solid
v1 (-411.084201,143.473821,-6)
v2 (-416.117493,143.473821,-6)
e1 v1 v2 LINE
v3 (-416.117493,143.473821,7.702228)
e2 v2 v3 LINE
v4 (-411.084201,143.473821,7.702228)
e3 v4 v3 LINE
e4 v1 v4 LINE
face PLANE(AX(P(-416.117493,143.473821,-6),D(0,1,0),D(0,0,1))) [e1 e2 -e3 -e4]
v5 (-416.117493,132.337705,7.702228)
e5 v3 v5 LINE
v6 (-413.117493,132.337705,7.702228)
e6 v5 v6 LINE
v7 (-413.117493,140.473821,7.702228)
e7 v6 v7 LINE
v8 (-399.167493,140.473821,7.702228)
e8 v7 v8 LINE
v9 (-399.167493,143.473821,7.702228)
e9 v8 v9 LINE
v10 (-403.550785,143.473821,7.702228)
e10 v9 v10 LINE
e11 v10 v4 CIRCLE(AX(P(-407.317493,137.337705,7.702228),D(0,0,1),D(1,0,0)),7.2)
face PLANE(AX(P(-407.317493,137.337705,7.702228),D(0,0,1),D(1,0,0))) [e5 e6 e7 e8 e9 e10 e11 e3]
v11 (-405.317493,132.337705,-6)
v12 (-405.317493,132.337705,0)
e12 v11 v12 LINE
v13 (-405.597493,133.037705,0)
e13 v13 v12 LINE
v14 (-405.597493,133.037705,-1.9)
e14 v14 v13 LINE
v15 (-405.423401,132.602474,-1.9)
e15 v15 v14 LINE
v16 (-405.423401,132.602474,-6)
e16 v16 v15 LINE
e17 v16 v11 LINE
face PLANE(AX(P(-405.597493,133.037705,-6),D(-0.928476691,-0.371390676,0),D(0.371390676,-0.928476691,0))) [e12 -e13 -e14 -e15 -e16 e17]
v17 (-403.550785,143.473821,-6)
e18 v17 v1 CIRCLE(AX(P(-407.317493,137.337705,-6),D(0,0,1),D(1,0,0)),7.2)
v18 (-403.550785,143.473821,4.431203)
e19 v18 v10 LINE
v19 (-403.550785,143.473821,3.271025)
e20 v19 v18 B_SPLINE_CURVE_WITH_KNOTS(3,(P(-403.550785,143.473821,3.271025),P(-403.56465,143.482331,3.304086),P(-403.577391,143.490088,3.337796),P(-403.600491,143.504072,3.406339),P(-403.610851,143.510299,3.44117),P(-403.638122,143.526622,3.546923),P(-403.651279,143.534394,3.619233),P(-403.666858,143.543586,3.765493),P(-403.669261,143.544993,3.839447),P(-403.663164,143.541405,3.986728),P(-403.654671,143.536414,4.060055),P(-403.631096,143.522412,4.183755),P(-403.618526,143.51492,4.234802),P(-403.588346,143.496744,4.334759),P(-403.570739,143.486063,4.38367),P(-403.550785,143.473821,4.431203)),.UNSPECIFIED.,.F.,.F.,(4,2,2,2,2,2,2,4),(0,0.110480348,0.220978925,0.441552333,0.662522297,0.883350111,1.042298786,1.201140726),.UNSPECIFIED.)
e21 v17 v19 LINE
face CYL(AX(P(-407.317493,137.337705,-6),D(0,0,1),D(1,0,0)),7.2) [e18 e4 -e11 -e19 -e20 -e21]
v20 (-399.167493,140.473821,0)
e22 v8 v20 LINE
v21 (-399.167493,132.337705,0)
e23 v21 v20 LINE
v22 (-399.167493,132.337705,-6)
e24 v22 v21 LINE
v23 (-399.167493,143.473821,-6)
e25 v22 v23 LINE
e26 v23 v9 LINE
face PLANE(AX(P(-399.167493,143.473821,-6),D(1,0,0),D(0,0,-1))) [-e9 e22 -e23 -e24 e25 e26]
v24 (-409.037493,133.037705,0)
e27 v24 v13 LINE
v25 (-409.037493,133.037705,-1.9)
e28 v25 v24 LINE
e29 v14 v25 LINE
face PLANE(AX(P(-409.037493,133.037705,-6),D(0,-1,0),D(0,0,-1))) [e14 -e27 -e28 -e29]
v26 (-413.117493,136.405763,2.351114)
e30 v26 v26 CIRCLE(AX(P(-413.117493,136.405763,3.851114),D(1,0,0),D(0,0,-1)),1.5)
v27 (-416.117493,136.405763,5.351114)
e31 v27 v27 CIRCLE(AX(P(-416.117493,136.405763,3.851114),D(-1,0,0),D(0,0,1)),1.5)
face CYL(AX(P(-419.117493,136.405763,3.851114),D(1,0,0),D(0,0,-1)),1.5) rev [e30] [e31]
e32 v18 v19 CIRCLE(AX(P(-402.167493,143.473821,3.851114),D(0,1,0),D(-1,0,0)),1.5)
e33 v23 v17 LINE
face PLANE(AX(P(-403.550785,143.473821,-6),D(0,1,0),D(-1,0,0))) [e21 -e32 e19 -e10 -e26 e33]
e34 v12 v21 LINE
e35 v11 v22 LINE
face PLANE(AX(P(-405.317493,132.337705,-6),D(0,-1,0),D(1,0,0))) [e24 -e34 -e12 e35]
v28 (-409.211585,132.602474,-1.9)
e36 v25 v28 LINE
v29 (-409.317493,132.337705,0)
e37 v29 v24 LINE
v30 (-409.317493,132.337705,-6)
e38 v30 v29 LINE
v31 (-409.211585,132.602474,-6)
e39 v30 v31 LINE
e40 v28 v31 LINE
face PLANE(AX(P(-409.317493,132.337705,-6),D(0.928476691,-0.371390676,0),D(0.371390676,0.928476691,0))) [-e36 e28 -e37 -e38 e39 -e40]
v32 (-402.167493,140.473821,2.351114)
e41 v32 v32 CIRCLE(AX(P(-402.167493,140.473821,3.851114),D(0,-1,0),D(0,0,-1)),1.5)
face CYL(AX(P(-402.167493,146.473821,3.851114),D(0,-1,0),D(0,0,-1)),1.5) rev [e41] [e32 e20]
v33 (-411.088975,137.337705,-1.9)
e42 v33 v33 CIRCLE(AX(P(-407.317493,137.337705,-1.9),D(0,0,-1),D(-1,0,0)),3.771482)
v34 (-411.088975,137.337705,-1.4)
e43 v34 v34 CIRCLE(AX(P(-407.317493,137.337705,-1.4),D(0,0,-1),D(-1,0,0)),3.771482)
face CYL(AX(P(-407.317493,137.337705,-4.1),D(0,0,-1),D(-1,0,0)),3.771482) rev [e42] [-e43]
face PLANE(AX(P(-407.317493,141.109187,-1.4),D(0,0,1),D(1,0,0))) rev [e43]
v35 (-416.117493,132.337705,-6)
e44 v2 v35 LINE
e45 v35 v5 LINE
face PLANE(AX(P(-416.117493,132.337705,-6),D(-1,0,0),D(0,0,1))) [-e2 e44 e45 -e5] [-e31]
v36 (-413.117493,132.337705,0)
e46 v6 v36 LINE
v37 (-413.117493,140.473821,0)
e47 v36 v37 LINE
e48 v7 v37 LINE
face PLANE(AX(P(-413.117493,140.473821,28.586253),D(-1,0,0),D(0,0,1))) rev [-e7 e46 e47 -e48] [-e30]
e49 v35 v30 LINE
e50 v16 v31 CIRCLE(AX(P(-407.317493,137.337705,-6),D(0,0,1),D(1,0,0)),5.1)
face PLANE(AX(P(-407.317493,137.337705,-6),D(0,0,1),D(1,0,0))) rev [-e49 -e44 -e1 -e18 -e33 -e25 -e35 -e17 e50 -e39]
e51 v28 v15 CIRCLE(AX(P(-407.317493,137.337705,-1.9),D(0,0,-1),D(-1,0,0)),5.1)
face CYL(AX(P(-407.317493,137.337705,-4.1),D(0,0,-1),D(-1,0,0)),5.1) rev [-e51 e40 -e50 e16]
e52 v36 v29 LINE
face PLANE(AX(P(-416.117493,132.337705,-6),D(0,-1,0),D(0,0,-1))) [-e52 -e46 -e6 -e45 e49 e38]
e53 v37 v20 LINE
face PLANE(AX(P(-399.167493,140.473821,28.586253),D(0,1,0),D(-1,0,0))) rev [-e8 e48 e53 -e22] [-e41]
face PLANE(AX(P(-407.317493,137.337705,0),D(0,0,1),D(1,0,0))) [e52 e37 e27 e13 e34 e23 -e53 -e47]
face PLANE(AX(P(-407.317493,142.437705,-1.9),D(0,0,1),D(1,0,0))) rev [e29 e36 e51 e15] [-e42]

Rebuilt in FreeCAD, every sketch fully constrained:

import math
import FreeCAD as App
import Part
import Sketcher
from FreeCAD import Vector
Q = App.Units.Quantity

doc = App.newDocument("Part")
params = doc.addObject("Spreadsheet::Sheet", "Params")
for row, (alias, value) in enumerate([
    ("sketch1_radius", "7.2 mm"),
    ("sketch1_width", "6.8 mm"),
    ("sketch1_width2", "3.44 mm"),
    ("sketch1_width3", "6.15 mm"),
    ("pad1_length", "6 mm"),
    ("sketch2_width", "5.1 mm"),
    ("sketch2_height", "0.5 mm"),
    ("groove_angle", "360 deg"),
    ("sketch3_radius", "7.2 mm"),
    ("sketch3_width", "3 mm"),
    ("sketch3_width2", "13.95 mm"),
    ("pad2_length", "7.702228 mm"),
    ("sketch4_diameter", "3 mm"),
    ("pocket1_length", "6 mm"),
    ("sketch5_diameter", "3 mm"),
    ("pocket2_length", "6 mm"),
], start=1):
    params.set(f"A{row}", alias)
    params.set(f"B{row}", "=" + value)
    params.setAlias(f"B{row}", alias)

body = doc.addObject("PartDesign::Body", "Body")

# Sketch on XY plane
sketch1 = body.newObject("Sketcher::SketchObject", "Sketch")
sketch1.AttachmentSupport = (doc.getObject("XY_Plane"), [""])
sketch1.MapMode = "FlatFace"
sketch1.addGeometry(Part.LineSegment(Vector(-416.1, 132.3, 0), Vector(-409.3, 132.3, 0)), False)
sketch1.addGeometry(Part.LineSegment(Vector(-409.3, 132.3, 0), Vector(-409, 133, 0)), False)
sketch1.addGeometry(Part.LineSegment(Vector(-409, 133, 0), Vector(-405.6, 133, 0)), False)
sketch1.addGeometry(Part.LineSegment(Vector(-405.6, 133, 0), Vector(-405.3, 132.3, 0)), False)
sketch1.addGeometry(Part.LineSegment(Vector(-405.3, 132.3, 0), Vector(-399.2, 132.3, 0)), False)
sketch1.addGeometry(Part.LineSegment(Vector(-399.2, 132.3, 0), Vector(-399.2, 143.5, 0)), False)
sketch1.addGeometry(Part.LineSegment(Vector(-399.2, 143.5, 0), Vector(-403.6, 143.5, 0)), False)
sketch1.addGeometry(Part.ArcOfCircle(Part.Circle(Vector(-407.3, 137.3, 0), Vector(0, 0, 1), 7.2), math.radians(58), math.radians(122)), False)
sketch1.addGeometry(Part.LineSegment(Vector(-411.1, 143.5, 0), Vector(-416.1, 143.5, 0)), False)
sketch1.addGeometry(Part.LineSegment(Vector(-416.1, 143.5, 0), Vector(-416.1, 132.3, 0)), False)
sketch1.addConstraint(Sketcher.Constraint("Coincident", 0, 2, 1, 1))
sketch1.addConstraint(Sketcher.Constraint("Coincident", 1, 2, 2, 1))
sketch1.addConstraint(Sketcher.Constraint("Coincident", 2, 2, 3, 1))
sketch1.addConstraint(Sketcher.Constraint("Coincident", 3, 2, 4, 1))
sketch1.addConstraint(Sketcher.Constraint("Coincident", 4, 2, 5, 1))
sketch1.addConstraint(Sketcher.Constraint("Coincident", 5, 2, 6, 1))
sketch1.addConstraint(Sketcher.Constraint("Coincident", 6, 2, 7, 1))
sketch1.addConstraint(Sketcher.Constraint("Coincident", 7, 2, 8, 1))
sketch1.addConstraint(Sketcher.Constraint("Coincident", 8, 2, 9, 1))
sketch1.addConstraint(Sketcher.Constraint("Coincident", 9, 2, 0, 1))
sketch1.addConstraint(Sketcher.Constraint("Horizontal", 0))
sketch1.addConstraint(Sketcher.Constraint("Horizontal", 2))
sketch1.addConstraint(Sketcher.Constraint("Horizontal", 4))
sketch1.addConstraint(Sketcher.Constraint("Vertical", 5))
sketch1.addConstraint(Sketcher.Constraint("Horizontal", 6))
sketch1.addConstraint(Sketcher.Constraint("Horizontal", 8))
sketch1.addConstraint(Sketcher.Constraint("Vertical", 9))
sketch1.addConstraint(Sketcher.Constraint("Horizontal", 0, 2, 3, 2))
sketch1.addConstraint(Sketcher.Constraint("Horizontal", 6, 2, 7, 2))
sketch1.addConstraint(Sketcher.Constraint("Equal", 1, 3))
sketch1.addConstraint(Sketcher.Constraint("Radius", 7, Q("7.2 mm")))
sketch1.addConstraint(Sketcher.Constraint("DistanceX", 0, 1, 0, 2, Q("6.8 mm")))
sketch1.addConstraint(Sketcher.Constraint("DistanceX", 0, 2, 7, 3, Q("2 mm")))
sketch1.addConstraint(Sketcher.Constraint("DistanceY", 0, 2, 7, 3, Q("5 mm")))
sketch1.addConstraint(Sketcher.Constraint("DistanceX", 0, 2, 3, 2, Q("4 mm")))
sketch1.addConstraint(Sketcher.Constraint("DistanceX", 2, 1, 2, 2, Q("3.44 mm")))
sketch1.addConstraint(Sketcher.Constraint("DistanceX", 4, 1, 4, 2, Q("6.15 mm")))
sketch1.addConstraint(Sketcher.Constraint("DistanceY", 0, 2, 1, 2, Q("0.7 mm")))
sketch1.addConstraint(Sketcher.Constraint("DistanceX", 6, 2, 6, 1, Q("4.383292 mm")))
sketch1.addConstraint(Sketcher.Constraint("DistanceX", 7, 2, -1, 1, Q("411.084201 mm")))
sketch1.addConstraint(Sketcher.Constraint("DistanceY", -1, 1, 5, 2, Q("143.473821 mm")))
sketch1.setExpression("Constraints[20]", "Params.sketch1_radius")
sketch1.setExpression("Constraints[21]", "Params.sketch1_width")
sketch1.setExpression("Constraints[25]", "Params.sketch1_width2")
sketch1.setExpression("Constraints[26]", "Params.sketch1_width3")
pad1 = body.newObject("PartDesign::Pad", "Pad")
pad1.Profile = sketch1
pad1.setExpression("Length", "Params.pad1_length")
pad1.Reversed = True

# Sketch on YZ plane
sketch2 = body.newObject("Sketcher::SketchObject", "Sketch001")
sketch2.AttachmentSupport = (doc.getObject("YZ_Plane"), [""])
sketch2.MapMode = "FlatFace"
sketch2.AttachmentOffset = App.Placement(Vector(0, 0, -407.317493), App.Rotation())
sketch2.addGeometry(Part.LineSegment(Vector(142.4, -6.1, 0), Vector(142.4, -1.9, 0)), False)
sketch2.addGeometry(Part.LineSegment(Vector(142.4, -1.9, 0), Vector(141.1, -1.9, 0)), False)
sketch2.addGeometry(Part.LineSegment(Vector(141.1, -1.9, 0), Vector(141.1, -1.4, 0)), False)
sketch2.addGeometry(Part.LineSegment(Vector(141.1, -1.4, 0), Vector(137.3, -1.4, 0)), False)
sketch2.addGeometry(Part.LineSegment(Vector(137.3, -1.4, 0), Vector(137.3, -6.1, 0)), False)
sketch2.addGeometry(Part.LineSegment(Vector(137.3, -6.1, 0), Vector(142.4, -6.1, 0)), False)
sketch2.addGeometry(Part.LineSegment(Vector(137.3, -6.1, 0), Vector(137.3, -1.4, 0)), True)  # axis
sketch2.addConstraint(Sketcher.Constraint("Coincident", 0, 2, 1, 1))
sketch2.addConstraint(Sketcher.Constraint("Coincident", 1, 2, 2, 1))
sketch2.addConstraint(Sketcher.Constraint("Coincident", 2, 2, 3, 1))
sketch2.addConstraint(Sketcher.Constraint("Coincident", 3, 2, 4, 1))
sketch2.addConstraint(Sketcher.Constraint("Coincident", 4, 2, 5, 1))
sketch2.addConstraint(Sketcher.Constraint("Coincident", 5, 2, 0, 1))
sketch2.addConstraint(Sketcher.Constraint("Vertical", 0))
sketch2.addConstraint(Sketcher.Constraint("Horizontal", 1))
sketch2.addConstraint(Sketcher.Constraint("Vertical", 2))
sketch2.addConstraint(Sketcher.Constraint("Horizontal", 3))
sketch2.addConstraint(Sketcher.Constraint("Vertical", 4))
sketch2.addConstraint(Sketcher.Constraint("Horizontal", 5))
sketch2.addConstraint(Sketcher.Constraint("Vertical", 6))
sketch2.addConstraint(Sketcher.Constraint("Coincident", 6, 1, 4, 2))
sketch2.addConstraint(Sketcher.Constraint("Horizontal", 2, 2, 6, 2))
sketch2.addConstraint(Sketcher.Constraint("DistanceX", 5, 1, 5, 2, Q("5.1 mm")))
sketch2.addConstraint(Sketcher.Constraint("DistanceY", 2, 1, 2, 2, Q("0.5 mm")))
sketch2.addConstraint(Sketcher.Constraint("DistanceY", 0, 2, -1, 1, Q("1.9 mm")))
sketch2.addConstraint(Sketcher.Constraint("DistanceX", 1, 2, 1, 1, Q("1.328518 mm")))
sketch2.addConstraint(Sketcher.Constraint("DistanceY", 0, 1, 0, 2, Q("4.235092 mm")))
sketch2.addConstraint(Sketcher.Constraint("DistanceX", -1, 1, 0, 2, Q("142.437705 mm")))
sketch2.setExpression("Constraints[15]", "Params.sketch2_width")
sketch2.setExpression("Constraints[16]", "Params.sketch2_height")
groove = body.newObject("PartDesign::Groove", "Groove")
groove.Profile = sketch2
groove.ReferenceAxis = (sketch2, ["Axis0"])
groove.setExpression("Angle", "Params.groove_angle")

# Sketch on XY plane
sketch3 = body.newObject("Sketcher::SketchObject", "Sketch002")
sketch3.AttachmentSupport = (doc.getObject("XY_Plane"), [""])
sketch3.MapMode = "FlatFace"
sketch3.AttachmentOffset = App.Placement(Vector(0, 0, 7.702228), App.Rotation())
sketch3.addGeometry(Part.LineSegment(Vector(-413.1, 132.3, 0), Vector(-413.1, 140.5, 0)), False)
sketch3.addGeometry(Part.LineSegment(Vector(-413.1, 140.5, 0), Vector(-399.2, 140.5, 0)), False)
sketch3.addGeometry(Part.LineSegment(Vector(-399.2, 140.5, 0), Vector(-399.2, 143.5, 0)), False)
sketch3.addGeometry(Part.LineSegment(Vector(-399.2, 143.5, 0), Vector(-403.6, 143.5, 0)), False)
sketch3.addGeometry(Part.ArcOfCircle(Part.Circle(Vector(-407.3, 137.3, 0), Vector(0, 0, 1), 7.2), math.radians(58), math.radians(122)), False)
sketch3.addGeometry(Part.LineSegment(Vector(-411.1, 143.5, 0), Vector(-416.1, 143.5, 0)), False)
sketch3.addGeometry(Part.LineSegment(Vector(-416.1, 143.5, 0), Vector(-416.1, 132.3, 0)), False)
sketch3.addGeometry(Part.LineSegment(Vector(-416.1, 132.3, 0), Vector(-413.1, 132.3, 0)), False)
sketch3.addConstraint(Sketcher.Constraint("Coincident", 0, 2, 1, 1))
sketch3.addConstraint(Sketcher.Constraint("Coincident", 1, 2, 2, 1))
sketch3.addConstraint(Sketcher.Constraint("Coincident", 2, 2, 3, 1))
sketch3.addConstraint(Sketcher.Constraint("Coincident", 3, 2, 4, 1))
sketch3.addConstraint(Sketcher.Constraint("Coincident", 4, 2, 5, 1))
sketch3.addConstraint(Sketcher.Constraint("Coincident", 5, 2, 6, 1))
sketch3.addConstraint(Sketcher.Constraint("Coincident", 6, 2, 7, 1))
sketch3.addConstraint(Sketcher.Constraint("Coincident", 7, 2, 0, 1))
sketch3.addConstraint(Sketcher.Constraint("Vertical", 0))
sketch3.addConstraint(Sketcher.Constraint("Horizontal", 1))
sketch3.addConstraint(Sketcher.Constraint("Vertical", 2))
sketch3.addConstraint(Sketcher.Constraint("Horizontal", 3))
sketch3.addConstraint(Sketcher.Constraint("Horizontal", 5))
sketch3.addConstraint(Sketcher.Constraint("Vertical", 6))
sketch3.addConstraint(Sketcher.Constraint("Horizontal", 7))
sketch3.addConstraint(Sketcher.Constraint("Horizontal", 3, 2, 4, 2))
sketch3.addConstraint(Sketcher.Constraint("Equal", 7, 2))
sketch3.addConstraint(Sketcher.Constraint("Radius", 4, Q("7.2 mm")))
sketch3.addConstraint(Sketcher.Constraint("DistanceX", 7, 1, 7, 2, Q("3 mm")))
sketch3.addConstraint(Sketcher.Constraint("DistanceY", 6, 2, 4, 3, Q("5 mm")))
sketch3.addConstraint(Sketcher.Constraint("DistanceX", 1, 1, 1, 2, Q("13.95 mm")))
sketch3.addConstraint(Sketcher.Constraint("DistanceX", 0, 2, 4, 3, Q("5.8 mm")))
sketch3.addConstraint(Sketcher.Constraint("DistanceX", 3, 2, 3, 1, Q("4.383292 mm")))
sketch3.addConstraint(Sketcher.Constraint("DistanceX", 4, 2, -1, 1, Q("411.084201 mm")))
sketch3.addConstraint(Sketcher.Constraint("DistanceY", -1, 1, 0, 2, Q("140.473821 mm")))
sketch3.setExpression("Constraints[17]", "Params.sketch3_radius")
sketch3.setExpression("Constraints[18]", "Params.sketch3_width")
sketch3.setExpression("Constraints[20]", "Params.sketch3_width2")
pad2 = body.newObject("PartDesign::Pad", "Pad001")
pad2.Profile = sketch3
pad2.setExpression("Length", "Params.pad2_length")
pad2.Reversed = True

# Sketch on YZ plane
sketch4 = body.newObject("Sketcher::SketchObject", "Sketch003")
sketch4.AttachmentSupport = (doc.getObject("YZ_Plane"), [""])
sketch4.MapMode = "FlatFace"
sketch4.AttachmentOffset = App.Placement(Vector(0, 0, -413.117493), App.Rotation())
sketch4.addGeometry(Part.Circle(Vector(136.4, 3.9, 0), Vector(0, 0, 1), 1.5), False)
sketch4.addConstraint(Sketcher.Constraint("Diameter", 0, Q("3 mm")))
sketch4.addConstraint(Sketcher.Constraint("DistanceX", -1, 1, 0, 3, Q("136.405763 mm")))
sketch4.addConstraint(Sketcher.Constraint("DistanceY", -1, 1, 0, 3, Q("3.851114 mm")))
sketch4.setExpression("Constraints[0]", "Params.sketch4_diameter")
pocket1 = body.newObject("PartDesign::Pocket", "Pocket")
pocket1.Profile = sketch4
pocket1.setExpression("Length", "Params.pocket1_length")

# Sketch on XZ plane
sketch5 = body.newObject("Sketcher::SketchObject", "Sketch004")
sketch5.AttachmentSupport = (doc.getObject("XZ_Plane"), [""])
sketch5.MapMode = "FlatFace"
sketch5.AttachmentOffset = App.Placement(Vector(0, 0, -140.473821), App.Rotation())
sketch5.addGeometry(Part.Circle(Vector(-402.2, 3.9, 0), Vector(0, 0, 1), 1.5), False)
sketch5.addConstraint(Sketcher.Constraint("Diameter", 0, Q("3 mm")))
sketch5.addConstraint(Sketcher.Constraint("DistanceX", 0, 3, -1, 1, Q("402.167493 mm")))
sketch5.addConstraint(Sketcher.Constraint("DistanceY", -1, 1, 0, 3, Q("3.851114 mm")))
sketch5.setExpression("Constraints[0]", "Params.sketch5_diameter")
pocket2 = body.newObject("PartDesign::Pocket", "Pocket001")
pocket2.Profile = sketch5
pocket2.setExpression("Length", "Params.pocket2_length")

doc.recompute()
